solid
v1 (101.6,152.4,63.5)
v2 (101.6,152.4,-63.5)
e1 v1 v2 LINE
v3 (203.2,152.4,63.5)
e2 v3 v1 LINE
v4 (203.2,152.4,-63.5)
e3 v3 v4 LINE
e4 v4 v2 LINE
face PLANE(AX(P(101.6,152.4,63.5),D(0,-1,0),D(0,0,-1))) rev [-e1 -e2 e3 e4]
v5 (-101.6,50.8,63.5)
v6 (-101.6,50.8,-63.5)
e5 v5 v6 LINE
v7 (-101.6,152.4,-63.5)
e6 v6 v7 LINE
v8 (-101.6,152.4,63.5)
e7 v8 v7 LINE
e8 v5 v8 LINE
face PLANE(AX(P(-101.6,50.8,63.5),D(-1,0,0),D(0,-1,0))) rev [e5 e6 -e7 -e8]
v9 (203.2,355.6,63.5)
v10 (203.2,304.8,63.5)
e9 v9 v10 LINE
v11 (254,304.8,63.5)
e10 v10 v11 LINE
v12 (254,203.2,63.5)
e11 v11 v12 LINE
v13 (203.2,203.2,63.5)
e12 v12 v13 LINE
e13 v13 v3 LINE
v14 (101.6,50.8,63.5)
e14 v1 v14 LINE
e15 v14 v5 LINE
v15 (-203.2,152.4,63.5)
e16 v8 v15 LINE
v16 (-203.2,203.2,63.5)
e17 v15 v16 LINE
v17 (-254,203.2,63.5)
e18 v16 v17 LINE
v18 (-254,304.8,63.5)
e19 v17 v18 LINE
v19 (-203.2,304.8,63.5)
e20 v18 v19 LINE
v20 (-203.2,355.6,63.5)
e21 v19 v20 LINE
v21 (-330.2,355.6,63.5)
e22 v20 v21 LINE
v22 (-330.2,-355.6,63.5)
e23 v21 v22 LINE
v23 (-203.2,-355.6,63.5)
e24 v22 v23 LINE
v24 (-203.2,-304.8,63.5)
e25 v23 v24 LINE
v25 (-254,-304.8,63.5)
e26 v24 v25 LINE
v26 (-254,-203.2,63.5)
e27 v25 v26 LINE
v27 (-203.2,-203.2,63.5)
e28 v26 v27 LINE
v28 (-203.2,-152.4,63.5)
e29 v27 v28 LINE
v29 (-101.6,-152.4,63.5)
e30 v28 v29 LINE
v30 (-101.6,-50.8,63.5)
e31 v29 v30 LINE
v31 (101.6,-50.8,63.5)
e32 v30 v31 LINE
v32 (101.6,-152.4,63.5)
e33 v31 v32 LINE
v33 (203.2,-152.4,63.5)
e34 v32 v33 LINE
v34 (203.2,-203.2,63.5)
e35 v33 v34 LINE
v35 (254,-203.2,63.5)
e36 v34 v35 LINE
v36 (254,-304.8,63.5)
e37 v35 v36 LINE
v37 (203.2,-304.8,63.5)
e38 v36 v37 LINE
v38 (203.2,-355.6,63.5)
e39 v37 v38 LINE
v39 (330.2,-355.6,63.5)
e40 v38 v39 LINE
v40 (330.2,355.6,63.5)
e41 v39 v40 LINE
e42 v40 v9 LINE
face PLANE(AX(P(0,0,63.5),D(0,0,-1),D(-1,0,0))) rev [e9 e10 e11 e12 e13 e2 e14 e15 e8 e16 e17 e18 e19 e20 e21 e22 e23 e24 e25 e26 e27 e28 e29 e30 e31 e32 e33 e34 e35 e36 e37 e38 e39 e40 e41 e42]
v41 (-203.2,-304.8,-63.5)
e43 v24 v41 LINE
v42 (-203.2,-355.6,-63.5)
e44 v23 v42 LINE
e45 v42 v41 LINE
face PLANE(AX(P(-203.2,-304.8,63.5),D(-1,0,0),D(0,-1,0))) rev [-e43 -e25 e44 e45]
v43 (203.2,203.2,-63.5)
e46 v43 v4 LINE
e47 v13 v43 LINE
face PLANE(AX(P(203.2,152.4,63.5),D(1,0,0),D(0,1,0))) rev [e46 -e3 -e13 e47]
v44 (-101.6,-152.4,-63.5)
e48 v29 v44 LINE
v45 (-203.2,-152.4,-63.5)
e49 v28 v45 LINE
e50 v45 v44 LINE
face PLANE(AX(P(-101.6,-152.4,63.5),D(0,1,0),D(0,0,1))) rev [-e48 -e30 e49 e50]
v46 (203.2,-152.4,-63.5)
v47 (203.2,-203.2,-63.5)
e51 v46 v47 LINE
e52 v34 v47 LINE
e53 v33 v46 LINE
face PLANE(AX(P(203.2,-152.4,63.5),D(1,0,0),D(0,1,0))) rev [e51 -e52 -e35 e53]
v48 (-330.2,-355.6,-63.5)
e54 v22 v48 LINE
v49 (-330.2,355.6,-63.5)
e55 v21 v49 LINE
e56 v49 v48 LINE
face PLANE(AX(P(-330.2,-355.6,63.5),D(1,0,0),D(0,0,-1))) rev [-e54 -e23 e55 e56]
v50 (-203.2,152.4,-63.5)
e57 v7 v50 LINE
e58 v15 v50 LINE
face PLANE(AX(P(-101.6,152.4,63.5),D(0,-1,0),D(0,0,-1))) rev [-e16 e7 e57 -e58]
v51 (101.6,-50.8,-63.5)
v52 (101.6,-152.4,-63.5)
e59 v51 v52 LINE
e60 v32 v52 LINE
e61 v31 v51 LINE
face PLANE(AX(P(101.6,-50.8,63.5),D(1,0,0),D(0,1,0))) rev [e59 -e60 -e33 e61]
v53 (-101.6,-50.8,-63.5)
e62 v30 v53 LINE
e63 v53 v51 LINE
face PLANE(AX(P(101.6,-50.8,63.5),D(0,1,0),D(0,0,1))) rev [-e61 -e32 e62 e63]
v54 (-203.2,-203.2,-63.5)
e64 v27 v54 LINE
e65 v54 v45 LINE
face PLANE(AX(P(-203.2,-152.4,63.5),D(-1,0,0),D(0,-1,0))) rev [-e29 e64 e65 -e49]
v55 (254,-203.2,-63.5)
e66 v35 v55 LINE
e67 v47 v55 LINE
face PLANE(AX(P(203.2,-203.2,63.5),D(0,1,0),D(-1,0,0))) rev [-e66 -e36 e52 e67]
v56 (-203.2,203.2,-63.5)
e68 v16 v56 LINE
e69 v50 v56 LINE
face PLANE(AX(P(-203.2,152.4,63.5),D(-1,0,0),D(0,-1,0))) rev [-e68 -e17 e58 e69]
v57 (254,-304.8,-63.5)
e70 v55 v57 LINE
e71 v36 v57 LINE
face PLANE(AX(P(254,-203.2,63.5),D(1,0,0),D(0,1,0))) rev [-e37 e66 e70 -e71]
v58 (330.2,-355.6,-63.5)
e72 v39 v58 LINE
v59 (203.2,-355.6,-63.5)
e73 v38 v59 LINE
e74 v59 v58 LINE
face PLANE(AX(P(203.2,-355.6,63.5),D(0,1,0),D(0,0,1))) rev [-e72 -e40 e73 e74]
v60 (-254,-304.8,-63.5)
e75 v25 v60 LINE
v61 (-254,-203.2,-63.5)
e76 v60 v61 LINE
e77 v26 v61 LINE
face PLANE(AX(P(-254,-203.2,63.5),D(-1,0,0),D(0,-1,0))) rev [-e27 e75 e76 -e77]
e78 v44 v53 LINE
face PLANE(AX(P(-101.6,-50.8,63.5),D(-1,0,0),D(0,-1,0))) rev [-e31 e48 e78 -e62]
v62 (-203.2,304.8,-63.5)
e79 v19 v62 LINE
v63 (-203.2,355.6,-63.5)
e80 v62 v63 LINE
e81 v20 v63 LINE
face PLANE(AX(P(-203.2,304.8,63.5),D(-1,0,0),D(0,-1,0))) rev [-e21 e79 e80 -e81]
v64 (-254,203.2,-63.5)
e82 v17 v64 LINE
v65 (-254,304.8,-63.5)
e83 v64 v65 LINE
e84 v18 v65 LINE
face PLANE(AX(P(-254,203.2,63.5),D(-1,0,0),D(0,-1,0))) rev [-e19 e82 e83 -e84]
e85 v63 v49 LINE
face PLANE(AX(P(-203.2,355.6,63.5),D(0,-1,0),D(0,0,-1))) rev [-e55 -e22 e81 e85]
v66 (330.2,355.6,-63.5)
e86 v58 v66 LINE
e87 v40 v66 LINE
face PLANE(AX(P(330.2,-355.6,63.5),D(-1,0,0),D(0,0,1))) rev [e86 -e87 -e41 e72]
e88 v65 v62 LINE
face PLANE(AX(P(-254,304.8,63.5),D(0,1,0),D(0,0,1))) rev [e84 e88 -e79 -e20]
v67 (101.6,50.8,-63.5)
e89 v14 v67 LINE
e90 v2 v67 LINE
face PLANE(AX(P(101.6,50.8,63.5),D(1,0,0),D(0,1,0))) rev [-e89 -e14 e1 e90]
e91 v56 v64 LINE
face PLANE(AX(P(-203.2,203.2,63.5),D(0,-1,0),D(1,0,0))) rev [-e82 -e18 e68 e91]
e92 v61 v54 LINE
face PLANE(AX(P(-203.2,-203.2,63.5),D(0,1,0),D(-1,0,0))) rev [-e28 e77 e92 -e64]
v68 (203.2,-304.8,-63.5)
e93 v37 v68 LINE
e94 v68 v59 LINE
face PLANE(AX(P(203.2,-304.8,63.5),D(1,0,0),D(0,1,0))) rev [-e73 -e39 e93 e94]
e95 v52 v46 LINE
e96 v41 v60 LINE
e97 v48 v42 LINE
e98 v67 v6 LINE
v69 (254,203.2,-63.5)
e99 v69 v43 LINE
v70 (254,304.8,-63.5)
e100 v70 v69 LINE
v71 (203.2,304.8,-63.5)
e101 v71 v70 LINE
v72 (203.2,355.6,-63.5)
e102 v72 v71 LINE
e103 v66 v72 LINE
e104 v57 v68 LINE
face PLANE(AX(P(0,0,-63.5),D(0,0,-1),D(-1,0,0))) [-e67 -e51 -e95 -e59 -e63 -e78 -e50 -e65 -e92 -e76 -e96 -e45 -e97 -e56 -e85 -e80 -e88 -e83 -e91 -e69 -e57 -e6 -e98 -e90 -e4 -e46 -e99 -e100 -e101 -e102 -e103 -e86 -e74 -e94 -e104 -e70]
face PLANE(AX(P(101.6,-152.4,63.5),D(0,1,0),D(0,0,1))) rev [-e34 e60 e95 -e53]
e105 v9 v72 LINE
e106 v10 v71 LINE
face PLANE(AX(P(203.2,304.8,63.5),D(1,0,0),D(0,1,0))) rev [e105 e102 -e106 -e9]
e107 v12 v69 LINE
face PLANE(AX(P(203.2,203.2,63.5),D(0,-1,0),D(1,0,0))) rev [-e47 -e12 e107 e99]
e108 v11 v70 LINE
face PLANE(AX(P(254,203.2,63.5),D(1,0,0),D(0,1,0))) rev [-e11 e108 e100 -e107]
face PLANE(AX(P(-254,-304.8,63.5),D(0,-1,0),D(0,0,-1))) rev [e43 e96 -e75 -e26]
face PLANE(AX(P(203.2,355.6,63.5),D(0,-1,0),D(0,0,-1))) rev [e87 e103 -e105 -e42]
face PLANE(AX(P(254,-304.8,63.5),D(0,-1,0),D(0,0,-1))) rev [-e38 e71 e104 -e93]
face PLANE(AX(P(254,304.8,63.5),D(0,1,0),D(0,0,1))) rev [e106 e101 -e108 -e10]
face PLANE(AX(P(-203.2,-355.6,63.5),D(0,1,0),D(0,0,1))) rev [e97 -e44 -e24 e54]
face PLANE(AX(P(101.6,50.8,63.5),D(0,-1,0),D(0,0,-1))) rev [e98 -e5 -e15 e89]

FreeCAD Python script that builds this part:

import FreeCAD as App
import Part
import Sketcher

V = App.Vector
Q = App.Units.Quantity

doc = App.newDocument("Part")
body = doc.addObject("PartDesign::Body", "Body")

sketch1 = body.newObject("Sketcher::SketchObject", "Sketch")
sketch1.AttachmentSupport = (doc.getObject("XY_Plane"), [""])
sketch1.MapMode = "FlatFace"
sketch1.addGeometry([
    Part.LineSegment(V(-102, -51, 0), V(102, -51, 0)),
    Part.LineSegment(V(102, -51, 0), V(102, -152, 0)),
    Part.LineSegment(V(102, -152, 0), V(203, -152, 0)),
    Part.LineSegment(V(203, -152, 0), V(203, -203, 0)),
    Part.LineSegment(V(203, -203, 0), V(254, -203, 0)),
    Part.LineSegment(V(254, -203, 0), V(254, -305, 0)),
    Part.LineSegment(V(254, -305, 0), V(203, -305, 0)),
    Part.LineSegment(V(203, -305, 0), V(203, -356, 0)),
    Part.LineSegment(V(203, -356, 0), V(330, -356, 0)),
    Part.LineSegment(V(330, -356, 0), V(330, 356, 0)),
    Part.LineSegment(V(330, 356, 0), V(203, 356, 0)),
    Part.LineSegment(V(203, 356, 0), V(203, 305, 0)),
    Part.LineSegment(V(203, 305, 0), V(254, 305, 0)),
    Part.LineSegment(V(254, 305, 0), V(254, 203, 0)),
    Part.LineSegment(V(254, 203, 0), V(203, 203, 0)),
    Part.LineSegment(V(203, 203, 0), V(203, 152, 0)),
    Part.LineSegment(V(203, 152, 0), V(102, 152, 0)),
    Part.LineSegment(V(102, 152, 0), V(102, 51, 0)),
    Part.LineSegment(V(102, 51, 0), V(-102, 51, 0)),
    Part.LineSegment(V(-102, 51, 0), V(-102, 152, 0)),
    Part.LineSegment(V(-102, 152, 0), V(-203, 152, 0)),
    Part.LineSegment(V(-203, 152, 0), V(-203, 203, 0)),
    Part.LineSegment(V(-203, 203, 0), V(-254, 203, 0)),
    Part.LineSegment(V(-254, 203, 0), V(-254, 305, 0)),
    Part.LineSegment(V(-254, 305, 0), V(-203, 305, 0)),
    Part.LineSegment(V(-203, 305, 0), V(-203, 356, 0)),
    Part.LineSegment(V(-203, 356, 0), V(-330, 356, 0)),
    Part.LineSegment(V(-330, 356, 0), V(-330, -356, 0)),
    Part.LineSegment(V(-330, -356, 0), V(-203, -356, 0)),
    Part.LineSegment(V(-203, -356, 0), V(-203, -305, 0)),
    Part.LineSegment(V(-203, -305, 0), V(-254, -305, 0)),
    Part.LineSegment(V(-254, -305, 0), V(-254, -203, 0)),
    Part.LineSegment(V(-254, -203, 0), V(-203, -203, 0)),
    Part.LineSegment(V(-203, -203, 0), V(-203, -152, 0)),
    Part.LineSegment(V(-203, -152, 0), V(-102, -152, 0)),
    Part.LineSegment(V(-102, -152, 0), V(-102, -51, 0)),
], False)
sketch1.addConstraint([
    Sketcher.Constraint("Coincident", 0, 2, 1, 1),
    Sketcher.Constraint("Coincident", 1, 2, 2, 1),
    Sketcher.Constraint("Coincident", 2, 2, 3, 1),
    Sketcher.Constraint("Coincident", 3, 2, 4, 1),
    Sketcher.Constraint("Coincident", 4, 2, 5, 1),
    Sketcher.Constraint("Coincident", 5, 2, 6, 1),
    Sketcher.Constraint("Coincident", 6, 2, 7, 1),
    Sketcher.Constraint("Coincident", 7, 2, 8, 1),
    Sketcher.Constraint("Coincident", 8, 2, 9, 1),
    Sketcher.Constraint("Coincident", 9, 2, 10, 1),
    Sketcher.Constraint("Coincident", 10, 2, 11, 1),
    Sketcher.Constraint("Coincident", 11, 2, 12, 1),
    Sketcher.Constraint("Coincident", 12, 2, 13, 1),
    Sketcher.Constraint("Coincident", 13, 2, 14, 1),
    Sketcher.Constraint("Coincident", 14, 2, 15, 1),
    Sketcher.Constraint("Coincident", 15, 2, 16, 1),
    Sketcher.Constraint("Coincident", 16, 2, 17, 1),
    Sketcher.Constraint("Coincident", 17, 2, 18, 1),
    Sketcher.Constraint("Coincident", 18, 2, 19, 1),
    Sketcher.Constraint("Coincident", 19, 2, 20, 1),
    Sketcher.Constraint("Coincident", 20, 2, 21, 1),
    Sketcher.Constraint("Coincident", 21, 2, 22, 1),
    Sketcher.Constraint("Coincident", 22, 2, 23, 1),
    Sketcher.Constraint("Coincident", 23, 2, 24, 1),
    Sketcher.Constraint("Coincident", 24, 2, 25, 1),
    Sketcher.Constraint("Coincident", 25, 2, 26, 1),
    Sketcher.Constraint("Coincident", 26, 2, 27, 1),
    Sketcher.Constraint("Coincident", 27, 2, 28, 1),
    Sketcher.Constraint("Coincident", 28, 2, 29, 1),
    Sketcher.Constraint("Coincident", 29, 2, 30, 1),
    Sketcher.Constraint("Coincident", 30, 2, 31, 1),
    Sketcher.Constraint("Coincident", 31, 2, 32, 1),
    Sketcher.Constraint("Coincident", 32, 2, 33, 1),
    Sketcher.Constraint("Coincident", 33, 2, 34, 1),
    Sketcher.Constraint("Coincident", 34, 2, 35, 1),
    Sketcher.Constraint("Coincident", 35, 2, 0, 1),
    Sketcher.Constraint("Horizontal", 0),
    Sketcher.Constraint("Vertical", 1),
    Sketcher.Constraint("Horizontal", 2),
    Sketcher.Constraint("Vertical", 3),
    Sketcher.Constraint("Horizontal", 4),
    Sketcher.Constraint("Vertical", 5),
    Sketcher.Constraint("Horizontal", 6),
    Sketcher.Constraint("Vertical", 7),
    Sketcher.Constraint("Horizontal", 8),
    Sketcher.Constraint("Vertical", 9),
    Sketcher.Constraint("Horizontal", 10),
    Sketcher.Constraint("Vertical", 11),
    Sketcher.Constraint("Horizontal", 12),
    Sketcher.Constraint("Vertical", 13),
    Sketcher.Constraint("Horizontal", 14),
    Sketcher.Constraint("Vertical", 15),
    Sketcher.Constraint("Horizontal", 16),
    Sketcher.Constraint("Vertical", 17),
    Sketcher.Constraint("Horizontal", 18),
    Sketcher.Constraint("Vertical", 19),
    Sketcher.Constraint("Horizontal", 20),
    Sketcher.Constraint("Vertical", 21),
    Sketcher.Constraint("Horizontal", 22),
    Sketcher.Constraint("Vertical", 23),
    Sketcher.Constraint("Horizontal", 24),
    Sketcher.Constraint("Vertical", 25),
    Sketcher.Constraint("Horizontal", 26),
    Sketcher.Constraint("Vertical", 27),
    Sketcher.Constraint("Horizontal", 28),
    Sketcher.Constraint("Vertical", 29),
    Sketcher.Constraint("Horizontal", 30),
    Sketcher.Constraint("Vertical", 31),
    Sketcher.Constraint("Horizontal", 32),
    Sketcher.Constraint("Vertical", 33),
    Sketcher.Constraint("Horizontal", 34),
    Sketcher.Constraint("Vertical", 35),
    Sketcher.Constraint("Symmetric", 0, 2, 18, 2, -1, 1),
    Sketcher.Constraint("Symmetric", 2, 2, 20, 2, -1, 1),
    Sketcher.Constraint("Symmetric", 4, 2, 22, 2, -1, 1),
    Sketcher.Constraint("Symmetric", 6, 2, 24, 2, -1, 1),
    Sketcher.Constraint("Symmetric", 8, 2, 26, 2, -1, 1),
    Sketcher.Constraint("Symmetric", 10, 2, 28, 2, -1, 1),
    Sketcher.Constraint("Symmetric", 12, 2, 30, 2, -1, 1),
    Sketcher.Constraint("Symmetric", 14, 2, 32, 2, -1, 1),
    Sketcher.Constraint("Symmetric", 16, 2, 34, 2, -1, 1),
    Sketcher.Constraint("Symmetric", 16, 2, 19, 2, -2),
    Sketcher.Constraint("Symmetric", 14, 2, 21, 2, -2),
    Sketcher.Constraint("Symmetric", 12, 2, 23, 2, -2),
    Sketcher.Constraint("Symmetric", 10, 2, 25, 2, -2),
    Sketcher.Constraint("Vertical", 3, 2, 6, 2),
    Sketcher.Constraint("Equal", 34, 1),
    Sketcher.Constraint("Equal", 32, 3),
    Sketcher.Constraint("Equal", 1, 5),
    Sketcher.Constraint("Equal", 3, 7),
    Sketcher.Constraint("DistanceX", 0, 1, 0, 2, Q("8 in")),
    Sketcher.Constraint("DistanceX", 2, 1, 2, 2, Q("4 in")),
    Sketcher.Constraint("DistanceX", 4, 1, 4, 2, Q("2 in")),
    Sketcher.Constraint("DistanceX", 8, 1, 8, 2, Q("5 in")),
    Sketcher.Constraint("DistanceY", 9, 1, 9, 2, Q("28 in")),
])
pad1 = body.newObject("PartDesign::Pad", "Pad")
pad1.Profile = sketch1
pad1.Length = Q("5 in")
pad1.Midplane = True

doc.recompute()
